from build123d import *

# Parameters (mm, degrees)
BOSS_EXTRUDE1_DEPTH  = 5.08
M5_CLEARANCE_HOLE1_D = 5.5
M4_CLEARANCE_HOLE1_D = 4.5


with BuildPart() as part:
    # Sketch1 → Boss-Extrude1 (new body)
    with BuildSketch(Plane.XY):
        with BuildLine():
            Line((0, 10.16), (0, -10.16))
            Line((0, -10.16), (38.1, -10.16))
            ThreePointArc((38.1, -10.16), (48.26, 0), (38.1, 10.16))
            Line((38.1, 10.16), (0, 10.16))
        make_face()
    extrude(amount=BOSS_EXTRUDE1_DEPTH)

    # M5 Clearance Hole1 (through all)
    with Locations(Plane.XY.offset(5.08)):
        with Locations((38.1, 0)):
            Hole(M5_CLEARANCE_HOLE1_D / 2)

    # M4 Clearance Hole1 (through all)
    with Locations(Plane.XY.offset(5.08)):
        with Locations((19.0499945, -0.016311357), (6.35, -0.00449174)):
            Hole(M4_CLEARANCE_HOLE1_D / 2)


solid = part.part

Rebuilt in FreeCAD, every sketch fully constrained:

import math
import FreeCAD as App
import Part
import Sketcher

V = App.Vector
Q = App.Units.Quantity

doc = App.newDocument("Part")
params = doc.addObject("Spreadsheet::Sheet", "Params")
for row, (alias, value) in enumerate([
    ("sketch1_radius", "0.4 in"),
    ("sketch1_width", "1.5 in"),
    ("pad1_length", "0.2 in"),
    ("hole_diameter", "5.5 mm"),
    ("hole2_diameter", "4.5 mm"),
], start=1):
    params.set(f"A{row}", alias)
    params.set(f"B{row}", "=" + value)
    params.setAlias(f"B{row}", alias)

body = doc.addObject("PartDesign::Body", "Body")

# Sketch on XY plane
sketch1 = body.newObject("Sketcher::SketchObject", "Sketch")
sketch1.AttachmentSupport = (doc.getObject("XY_Plane"), [""])
sketch1.MapMode = "FlatFace"
sketch1.addGeometry([
    Part.LineSegment(V(0, 10, 0), V(0, -10, 0)),
    Part.LineSegment(V(0, -10, 0), V(38, -10, 0)),
    Part.ArcOfCircle(Part.Circle(V(38, 0, 0), V(0, 0, 1), 10), math.radians(-90), math.radians(90)),
    Part.LineSegment(V(38, 10, 0), V(0, 10, 0)),
], False)
sketch1.addConstraint([
    Sketcher.Constraint("Coincident", 0, 2, 1, 1),
    Sketcher.Constraint("Tangent", 1, 2, 2, 1),
    Sketcher.Constraint("Tangent", 2, 2, 3, 1),
    Sketcher.Constraint("Coincident", 3, 2, 0, 1),
    Sketcher.Constraint("Vertical", 0),
    Sketcher.Constraint("Horizontal", 1),
    Sketcher.Constraint("Horizontal", 3),
    Sketcher.Constraint("Symmetric", 0, 2, 3, 2, -1, 1),
    Sketcher.Constraint("Radius", 2, Q("0.4 in")),
    Sketcher.Constraint("DistanceX", 1, 1, 1, 2, Q("1.5 in")),
])
sketch1.setExpression("Constraints[8]", "Params.sketch1_radius")
sketch1.setExpression("Constraints[9]", "Params.sketch1_width")
pad1 = body.newObject("PartDesign::Pad", "Pad")
pad1.Profile = sketch1
pad1.setExpression("Length", "Params.pad1_length")

# Sketch on XY plane
sketch2 = body.newObject("Sketcher::SketchObject", "Sketch001")
sketch2.AttachmentSupport = (doc.getObject("XY_Plane"), [""])
sketch2.MapMode = "FlatFace"
sketch2.AttachmentOffset = App.Placement(V(0, 0, 0.2 * 25.4), App.Rotation())
sketch2.addGeometry(Part.Circle(V(38.1, 0, 0), V(0, 0, 1), 2.8), False)
sketch2.addConstraint([
    Sketcher.Constraint("PointOnObject", 0, 3, -1),
    Sketcher.Constraint("DistanceX", -1, 1, 0, 3, Q("1.5 in")),
    Sketcher.Constraint("Diameter", 0, 5.5),
])
doc.recompute()
hole = body.newObject("PartDesign::Hole", "Hole")
hole.Profile = sketch2
hole.ThreadType = "None"
hole.setExpression("Diameter", "Params.hole_diameter")
hole.DepthType = "ThroughAll"

# Sketch on XY plane
sketch3 = body.newObject("Sketcher::SketchObject", "Sketch002")
sketch3.AttachmentSupport = (doc.getObject("XY_Plane"), [""])
sketch3.MapMode = "FlatFace"
sketch3.AttachmentOffset = App.Placement(V(0, 0, 0.2 * 25.4), App.Rotation())
sketch3.addGeometry([
    Part.Circle(V(19, 0, 0), V(0, 0, 1), 2.2),
    Part.Circle(V(6.3, 0, 0), V(0, 0, 1), 2.2),
], False)
sketch3.addConstraint([
    Sketcher.Constraint("Equal", 0, 1),
    Sketcher.Constraint("Diameter", 0, 4.5),
    Sketcher.Constraint("DistanceX", -1, 1, 1, 3, Q("0.25 in")),
    Sketcher.Constraint("DistanceY", 0, 3, -1, 1, 0.016311),
    Sketcher.Constraint("DistanceY", 1, 3, -1, 1, 0.004492),
    Sketcher.Constraint("DistanceX", -1, 1, 0, 3, 19.049995),
])
doc.recompute()
hole2 = body.newObject("PartDesign::Hole", "Hole001")
hole2.Profile = sketch3
hole2.ThreadType = "None"
hole2.setExpression("Diameter", "Params.hole2_diameter")
hole2.DepthType = "ThroughAll"

doc.recompute()
